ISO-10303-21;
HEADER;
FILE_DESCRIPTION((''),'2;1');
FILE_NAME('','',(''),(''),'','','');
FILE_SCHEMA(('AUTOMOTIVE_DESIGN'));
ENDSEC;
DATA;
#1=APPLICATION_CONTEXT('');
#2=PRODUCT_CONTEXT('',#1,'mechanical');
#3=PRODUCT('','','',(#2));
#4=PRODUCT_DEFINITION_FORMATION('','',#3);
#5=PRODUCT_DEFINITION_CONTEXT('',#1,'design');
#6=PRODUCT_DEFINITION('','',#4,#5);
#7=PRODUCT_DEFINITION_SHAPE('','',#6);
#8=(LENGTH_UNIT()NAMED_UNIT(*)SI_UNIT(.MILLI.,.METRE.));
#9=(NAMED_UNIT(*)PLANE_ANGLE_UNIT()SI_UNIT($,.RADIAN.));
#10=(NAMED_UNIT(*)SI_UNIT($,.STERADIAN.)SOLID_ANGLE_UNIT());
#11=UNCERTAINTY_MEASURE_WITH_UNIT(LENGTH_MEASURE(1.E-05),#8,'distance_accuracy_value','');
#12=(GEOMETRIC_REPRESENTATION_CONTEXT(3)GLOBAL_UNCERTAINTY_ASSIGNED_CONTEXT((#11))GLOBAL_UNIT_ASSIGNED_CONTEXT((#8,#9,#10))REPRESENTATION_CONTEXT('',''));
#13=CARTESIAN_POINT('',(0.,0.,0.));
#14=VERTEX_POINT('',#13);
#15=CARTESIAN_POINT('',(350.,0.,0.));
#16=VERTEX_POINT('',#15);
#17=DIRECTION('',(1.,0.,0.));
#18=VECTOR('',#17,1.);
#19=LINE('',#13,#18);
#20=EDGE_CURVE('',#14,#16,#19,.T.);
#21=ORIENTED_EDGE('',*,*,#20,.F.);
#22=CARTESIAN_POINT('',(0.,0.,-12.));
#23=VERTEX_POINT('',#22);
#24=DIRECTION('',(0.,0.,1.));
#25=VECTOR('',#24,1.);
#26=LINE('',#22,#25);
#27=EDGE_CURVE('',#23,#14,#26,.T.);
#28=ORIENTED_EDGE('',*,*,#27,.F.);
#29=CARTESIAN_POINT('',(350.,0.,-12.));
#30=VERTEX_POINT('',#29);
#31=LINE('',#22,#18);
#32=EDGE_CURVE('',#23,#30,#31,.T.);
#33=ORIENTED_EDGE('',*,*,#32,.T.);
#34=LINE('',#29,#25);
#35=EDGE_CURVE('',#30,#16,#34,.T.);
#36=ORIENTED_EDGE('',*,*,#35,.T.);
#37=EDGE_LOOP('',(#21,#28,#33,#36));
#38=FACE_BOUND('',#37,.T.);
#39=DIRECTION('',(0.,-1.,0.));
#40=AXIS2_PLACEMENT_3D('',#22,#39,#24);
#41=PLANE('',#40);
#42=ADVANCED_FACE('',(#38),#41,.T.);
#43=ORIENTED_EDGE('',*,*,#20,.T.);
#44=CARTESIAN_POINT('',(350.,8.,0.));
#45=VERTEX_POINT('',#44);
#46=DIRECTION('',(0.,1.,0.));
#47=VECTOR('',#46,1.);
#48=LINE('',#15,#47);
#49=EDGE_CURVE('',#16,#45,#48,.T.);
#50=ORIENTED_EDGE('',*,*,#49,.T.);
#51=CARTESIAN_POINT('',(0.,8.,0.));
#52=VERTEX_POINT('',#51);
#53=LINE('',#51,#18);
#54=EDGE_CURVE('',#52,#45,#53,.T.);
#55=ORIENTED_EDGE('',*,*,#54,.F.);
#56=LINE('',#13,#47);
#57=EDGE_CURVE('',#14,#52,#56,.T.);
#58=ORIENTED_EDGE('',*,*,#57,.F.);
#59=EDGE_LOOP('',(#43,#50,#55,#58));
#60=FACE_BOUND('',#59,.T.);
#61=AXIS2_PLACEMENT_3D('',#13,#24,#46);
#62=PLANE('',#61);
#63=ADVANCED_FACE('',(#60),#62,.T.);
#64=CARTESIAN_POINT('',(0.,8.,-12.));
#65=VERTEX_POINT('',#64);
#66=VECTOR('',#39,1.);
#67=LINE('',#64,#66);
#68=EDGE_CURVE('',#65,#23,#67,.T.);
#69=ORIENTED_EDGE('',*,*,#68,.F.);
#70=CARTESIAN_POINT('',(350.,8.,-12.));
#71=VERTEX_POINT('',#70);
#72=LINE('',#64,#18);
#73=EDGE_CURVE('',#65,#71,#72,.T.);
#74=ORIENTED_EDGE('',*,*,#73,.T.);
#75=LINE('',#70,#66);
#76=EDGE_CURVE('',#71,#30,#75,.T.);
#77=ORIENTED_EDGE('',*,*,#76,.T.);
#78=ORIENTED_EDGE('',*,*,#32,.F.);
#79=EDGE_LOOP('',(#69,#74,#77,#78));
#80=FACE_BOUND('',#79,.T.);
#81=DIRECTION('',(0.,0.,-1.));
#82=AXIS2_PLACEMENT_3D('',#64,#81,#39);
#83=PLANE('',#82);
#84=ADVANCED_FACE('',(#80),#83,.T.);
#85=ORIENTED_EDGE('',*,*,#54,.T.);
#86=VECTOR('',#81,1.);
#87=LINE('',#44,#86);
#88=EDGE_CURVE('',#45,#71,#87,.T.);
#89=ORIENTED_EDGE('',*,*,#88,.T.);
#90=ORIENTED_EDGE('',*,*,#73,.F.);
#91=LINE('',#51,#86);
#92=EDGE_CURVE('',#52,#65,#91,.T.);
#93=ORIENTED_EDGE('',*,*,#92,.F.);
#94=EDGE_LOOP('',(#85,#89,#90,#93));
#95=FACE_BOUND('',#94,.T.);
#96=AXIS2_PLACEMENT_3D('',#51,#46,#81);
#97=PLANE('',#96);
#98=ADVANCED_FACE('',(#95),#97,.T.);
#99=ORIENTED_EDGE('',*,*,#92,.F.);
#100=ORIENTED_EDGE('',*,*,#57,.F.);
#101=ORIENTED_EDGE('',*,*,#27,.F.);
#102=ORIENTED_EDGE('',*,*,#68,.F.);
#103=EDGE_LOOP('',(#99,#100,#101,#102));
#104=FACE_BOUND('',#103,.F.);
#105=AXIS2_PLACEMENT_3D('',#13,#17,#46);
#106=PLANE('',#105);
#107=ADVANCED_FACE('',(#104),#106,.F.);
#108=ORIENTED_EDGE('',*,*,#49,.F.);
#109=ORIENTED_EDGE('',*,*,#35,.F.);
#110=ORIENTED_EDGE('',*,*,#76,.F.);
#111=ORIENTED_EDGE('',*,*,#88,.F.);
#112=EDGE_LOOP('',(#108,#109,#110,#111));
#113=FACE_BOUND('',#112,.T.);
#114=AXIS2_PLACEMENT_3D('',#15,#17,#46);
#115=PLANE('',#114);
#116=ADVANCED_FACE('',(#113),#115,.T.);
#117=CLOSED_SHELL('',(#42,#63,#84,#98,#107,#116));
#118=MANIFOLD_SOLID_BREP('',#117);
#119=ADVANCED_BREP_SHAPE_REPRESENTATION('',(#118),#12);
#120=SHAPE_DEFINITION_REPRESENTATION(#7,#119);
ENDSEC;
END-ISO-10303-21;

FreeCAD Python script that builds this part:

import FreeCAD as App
import Part
import Sketcher
from FreeCAD import Vector


def add_polygon(sketch, points):
    """Adds a closed chain of lines whose ends are joined by coincident constraints."""
    first, n = sketch.GeometryCount, len(points)
    for a, b in zip(points, points[1:] + points[:1]):
        sketch.addGeometry(Part.LineSegment(App.Vector(*a, 0), App.Vector(*b, 0)), False)
    for i in range(n):
        sketch.addConstraint(Sketcher.Constraint("Coincident", first + i, 2, first + (i + 1) % n, 1))

doc = App.newDocument("Part")
body = doc.addObject("PartDesign::Body", "Body")

sketch1 = body.newObject("Sketcher::SketchObject", "Sketch")
sketch1.AttachmentSupport = (doc.getObject("YZ_Plane"), [""])
sketch1.MapMode = "FlatFace"
add_polygon(sketch1, [(8, 0), (0, 0), (0, -12), (8, -12)])
sketch1.addConstraint([
    Sketcher.Constraint("Horizontal", 0),
    Sketcher.Constraint("Vertical", 1),
    Sketcher.Constraint("Horizontal", 2),
    Sketcher.Constraint("Vertical", 3),
    Sketcher.Constraint("Coincident", 0, 2, -1, 1),
    Sketcher.Constraint("DistanceX", 0, 2, 0, 1, 8.0),
    Sketcher.Constraint("DistanceY", 1, 2, 1, 1, 12.0),
])
pad1 = body.newObject("PartDesign::Pad", "Pad")
pad1.Profile = sketch1
pad1.Length = 350

doc.recompute()
